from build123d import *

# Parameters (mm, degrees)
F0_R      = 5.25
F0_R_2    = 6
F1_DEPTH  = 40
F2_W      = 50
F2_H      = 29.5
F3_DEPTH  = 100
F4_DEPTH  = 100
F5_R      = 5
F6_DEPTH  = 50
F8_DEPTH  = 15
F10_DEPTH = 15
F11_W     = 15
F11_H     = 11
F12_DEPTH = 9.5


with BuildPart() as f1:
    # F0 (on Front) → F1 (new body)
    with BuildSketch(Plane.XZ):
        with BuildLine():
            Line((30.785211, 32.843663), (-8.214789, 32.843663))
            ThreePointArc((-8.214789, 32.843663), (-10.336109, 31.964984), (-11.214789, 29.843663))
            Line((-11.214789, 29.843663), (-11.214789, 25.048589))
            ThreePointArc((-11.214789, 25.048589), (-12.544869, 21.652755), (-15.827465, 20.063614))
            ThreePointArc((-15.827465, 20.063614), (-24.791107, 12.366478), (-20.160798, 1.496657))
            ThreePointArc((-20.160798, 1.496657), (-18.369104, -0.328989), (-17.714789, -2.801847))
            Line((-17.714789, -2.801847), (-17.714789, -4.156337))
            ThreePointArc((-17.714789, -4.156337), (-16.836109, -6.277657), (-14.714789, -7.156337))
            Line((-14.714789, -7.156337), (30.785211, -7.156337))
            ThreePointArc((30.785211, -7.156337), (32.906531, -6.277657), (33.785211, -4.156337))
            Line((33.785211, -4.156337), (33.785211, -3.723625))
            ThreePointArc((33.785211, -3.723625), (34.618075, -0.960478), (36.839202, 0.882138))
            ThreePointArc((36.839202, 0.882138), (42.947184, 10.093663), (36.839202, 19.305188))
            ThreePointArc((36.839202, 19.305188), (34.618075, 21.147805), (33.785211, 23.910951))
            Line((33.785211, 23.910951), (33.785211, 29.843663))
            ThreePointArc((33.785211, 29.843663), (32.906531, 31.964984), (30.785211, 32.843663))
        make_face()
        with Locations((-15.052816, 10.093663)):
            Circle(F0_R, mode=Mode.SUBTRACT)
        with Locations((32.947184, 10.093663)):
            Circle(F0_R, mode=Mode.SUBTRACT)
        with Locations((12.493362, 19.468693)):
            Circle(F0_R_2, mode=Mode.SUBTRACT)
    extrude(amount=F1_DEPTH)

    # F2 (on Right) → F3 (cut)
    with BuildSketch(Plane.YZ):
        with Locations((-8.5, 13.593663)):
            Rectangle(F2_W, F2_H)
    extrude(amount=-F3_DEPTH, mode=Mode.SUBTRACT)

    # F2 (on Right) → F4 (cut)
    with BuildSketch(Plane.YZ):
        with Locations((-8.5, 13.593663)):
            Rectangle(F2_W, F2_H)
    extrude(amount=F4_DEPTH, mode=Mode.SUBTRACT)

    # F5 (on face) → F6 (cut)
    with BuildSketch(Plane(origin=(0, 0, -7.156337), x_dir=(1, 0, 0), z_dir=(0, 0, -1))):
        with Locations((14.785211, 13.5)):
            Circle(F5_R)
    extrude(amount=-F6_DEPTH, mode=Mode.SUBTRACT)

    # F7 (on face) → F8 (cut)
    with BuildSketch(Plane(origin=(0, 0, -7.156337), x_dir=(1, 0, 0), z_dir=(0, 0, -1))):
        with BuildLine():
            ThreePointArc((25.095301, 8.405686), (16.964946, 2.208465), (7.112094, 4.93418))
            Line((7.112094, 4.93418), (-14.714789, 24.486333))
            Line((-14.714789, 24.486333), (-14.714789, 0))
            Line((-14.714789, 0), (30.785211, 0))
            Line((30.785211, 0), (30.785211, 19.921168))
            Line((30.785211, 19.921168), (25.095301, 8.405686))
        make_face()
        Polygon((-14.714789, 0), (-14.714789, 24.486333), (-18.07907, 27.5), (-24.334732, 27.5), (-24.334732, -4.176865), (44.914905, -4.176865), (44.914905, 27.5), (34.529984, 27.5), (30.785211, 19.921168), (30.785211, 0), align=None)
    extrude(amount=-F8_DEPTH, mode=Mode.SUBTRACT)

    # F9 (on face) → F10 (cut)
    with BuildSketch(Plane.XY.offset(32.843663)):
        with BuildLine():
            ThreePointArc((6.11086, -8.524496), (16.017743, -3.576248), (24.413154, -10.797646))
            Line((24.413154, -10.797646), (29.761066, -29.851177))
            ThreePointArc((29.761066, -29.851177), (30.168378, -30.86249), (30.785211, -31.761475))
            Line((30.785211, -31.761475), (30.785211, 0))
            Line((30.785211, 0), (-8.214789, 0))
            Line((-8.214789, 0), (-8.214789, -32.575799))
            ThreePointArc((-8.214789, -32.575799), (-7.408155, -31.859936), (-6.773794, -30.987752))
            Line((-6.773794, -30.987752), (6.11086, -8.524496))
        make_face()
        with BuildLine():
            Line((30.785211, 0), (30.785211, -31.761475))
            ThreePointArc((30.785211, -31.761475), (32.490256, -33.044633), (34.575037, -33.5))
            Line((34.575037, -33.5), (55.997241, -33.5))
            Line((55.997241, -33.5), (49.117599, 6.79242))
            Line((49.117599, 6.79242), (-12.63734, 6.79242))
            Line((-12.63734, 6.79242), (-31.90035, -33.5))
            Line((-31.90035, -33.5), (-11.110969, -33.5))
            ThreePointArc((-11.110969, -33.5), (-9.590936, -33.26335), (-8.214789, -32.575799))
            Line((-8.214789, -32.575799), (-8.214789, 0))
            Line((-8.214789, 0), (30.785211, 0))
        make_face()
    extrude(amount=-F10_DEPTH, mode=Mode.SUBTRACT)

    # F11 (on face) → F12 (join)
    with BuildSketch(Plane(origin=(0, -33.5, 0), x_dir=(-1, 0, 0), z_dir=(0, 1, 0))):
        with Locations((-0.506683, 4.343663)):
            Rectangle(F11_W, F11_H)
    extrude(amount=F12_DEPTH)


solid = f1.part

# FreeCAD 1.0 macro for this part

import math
import FreeCAD as App
import Part
import Sketcher


def add_polygon(sketch, points):
    """Adds a closed chain of lines whose ends are joined by coincident constraints."""
    first, n = sketch.GeometryCount, len(points)
    for a, b in zip(points, points[1:] + points[:1]):
        sketch.addGeometry(Part.LineSegment(App.Vector(*a, 0), App.Vector(*b, 0)), False)
    for i in range(n):
        sketch.addConstraint(Sketcher.Constraint("Coincident", first + i, 2, first + (i + 1) % n, 1))

doc = App.newDocument("Part")
body = doc.addObject("PartDesign::Body", "Body")

sketch1 = doc.addObject("Sketcher::SketchObject", "Sketch")
body.addObject(sketch1)
sketch1.AttachmentSupport = (doc.XZ_Plane, [""])
sketch1.MapMode = "FlatFace"
sketch1.addGeometry([
    Part.LineSegment(App.Vector(30.79, 32.84, 0), App.Vector(-8.21, 32.84, 0)),
    Part.ArcOfCircle(Part.Circle(App.Vector(-8.21, 29.84, 0), App.Vector(0, 0, 1), 3), math.radians(90), math.radians(180)),
    Part.LineSegment(App.Vector(-11.21, 29.84, 0), App.Vector(-11.21, 25.05, 0)),
    Part.ArcOfCircle(Part.Circle(App.Vector(-16.21, 25.05, 0), App.Vector(0, 0, 1), 5), math.radians(-86), math.radians(0)),
    Part.ArcOfCircle(Part.Circle(App.Vector(-15.05, 10.09, 0), App.Vector(0, 0, 1), 10), math.radians(94), math.radians(239)),
    Part.ArcOfCircle(Part.Circle(App.Vector(-22.71, -2.8, 0), App.Vector(0, 0, 1), 5), math.radians(0), math.radians(59)),
    Part.LineSegment(App.Vector(-17.71, -2.8, 0), App.Vector(-17.71, -4.16, 0)),
    Part.ArcOfCircle(Part.Circle(App.Vector(-14.71, -4.16, 0), App.Vector(0, 0, 1), 3), math.radians(-180), math.radians(-90)),
    Part.LineSegment(App.Vector(-14.71, -7.16, 0), App.Vector(30.79, -7.16, 0)),
    Part.ArcOfCircle(Part.Circle(App.Vector(30.79, -4.16, 0), App.Vector(0, 0, 1), 3), math.radians(-90), math.radians(0)),
    Part.LineSegment(App.Vector(33.79, -4.16, 0), App.Vector(33.79, -3.72, 0)),
    Part.ArcOfCircle(Part.Circle(App.Vector(38.79, -3.72, 0), App.Vector(0, 0, 1), 5), math.radians(113), math.radians(180)),
    Part.ArcOfCircle(Part.Circle(App.Vector(32.95, 10.09, 0), App.Vector(0, 0, 1), 10), math.radians(-67), math.radians(67)),
    Part.ArcOfCircle(Part.Circle(App.Vector(38.79, 23.91, 0), App.Vector(0, 0, 1), 5), math.radians(-180), math.radians(-113)),
    Part.LineSegment(App.Vector(33.79, 23.91, 0), App.Vector(33.79, 29.84, 0)),
    Part.ArcOfCircle(Part.Circle(App.Vector(30.79, 29.84, 0), App.Vector(0, 0, 1), 3), math.radians(0), math.radians(90)),
    Part.Circle(App.Vector(-15.05, 10.09, 0), App.Vector(0, 0, 1), 5.25),
    Part.Circle(App.Vector(32.95, 10.09, 0), App.Vector(0, 0, 1), 5.25),
    Part.Circle(App.Vector(12.49, 19.47, 0), App.Vector(0, 0, 1), 6),
], False)
sketch1.addConstraint([
    Sketcher.Constraint("Tangent", 0, 2, 1, 1),
    Sketcher.Constraint("Tangent", 1, 2, 2, 1),
    Sketcher.Constraint("Tangent", 2, 2, 3, 2),
    Sketcher.Constraint("Tangent", 3, 1, 4, 1),
    Sketcher.Constraint("Tangent", 4, 2, 5, 2),
    Sketcher.Constraint("Tangent", 5, 1, 6, 1),
    Sketcher.Constraint("Tangent", 6, 2, 7, 1),
    Sketcher.Constraint("Tangent", 7, 2, 8, 1),
    Sketcher.Constraint("Tangent", 8, 2, 9, 1),
    Sketcher.Constraint("Tangent", 9, 2, 10, 1),
    Sketcher.Constraint("Tangent", 10, 2, 11, 2),
    Sketcher.Constraint("Tangent", 11, 1, 12, 1),
    Sketcher.Constraint("Tangent", 12, 2, 13, 2),
    Sketcher.Constraint("Tangent", 13, 1, 14, 1),
    Sketcher.Constraint("Tangent", 14, 2, 15, 1),
    Sketcher.Constraint("Tangent", 15, 2, 0, 1),
    Sketcher.Constraint("Horizontal", 0),
    Sketcher.Constraint("Vertical", 2),
    Sketcher.Constraint("Vertical", 6),
    Sketcher.Constraint("Horizontal", 8),
    Sketcher.Constraint("Vertical", 10),
    Sketcher.Constraint("Vertical", 14),
    Sketcher.Constraint("Coincident", 16, 3, 4, 3),
    Sketcher.Constraint("Coincident", 17, 3, 12, 3),
    Sketcher.Constraint("Equal", 3, 5),
    Sketcher.Constraint("Equal", 1, 7),
    Sketcher.Constraint("Equal", 7, 9),
    Sketcher.Constraint("Equal", 5, 11),
    Sketcher.Constraint("Equal", 4, 12),
    Sketcher.Constraint("Equal", 9, 15),
    Sketcher.Constraint("Equal", 16, 17),
    Sketcher.Constraint("Horizontal", 4, 3, 12, 3),
    Sketcher.Constraint("Vertical", 9, 3, 15, 3),
    Sketcher.Constraint("Vertical", 11, 1, 12, 2),
    Sketcher.Constraint("Diameter", 18, 12.0),
    Sketcher.Constraint("Radius", 1, 2.999999),
    Sketcher.Constraint("Radius", 3, 4.999999),
    Sketcher.Constraint("Radius", 4, 10.0),
    Sketcher.Constraint("Diameter", 16, 10.5),
    Sketcher.Constraint("DistanceX", 0, 2, 0, 1, 39.0),
    Sketcher.Constraint("DistanceX", 8, 1, 8, 2, 45.5),
    Sketcher.Constraint("DistanceY", 7, 3, 1, 3, 33.999999),
    Sketcher.Constraint("DistanceX", 4, 3, 12, 3, 48.0),
    Sketcher.Constraint("DistanceY", 4, 3, 1, 3, 19.75),
    Sketcher.Constraint("DistanceY", 6, 2, 6, 1, 1.35449),
    Sketcher.Constraint("DistanceX", -1, 1, 11, 1, 36.839202),
    Sketcher.Constraint("DistanceY", -1, 1, 3, 3, 25.048588),
    Sketcher.Constraint("DistanceX", 18, 3, 15, 3, 18.29185),
    Sketcher.Constraint("DistanceY", 18, 3, 15, 3, 10.374971),
])
pad1 = doc.addObject("PartDesign::Pad", "Pad")
body.addObject(pad1)
pad1.Profile = sketch1
pad1.Length = 40

sketch2 = doc.addObject("Sketcher::SketchObject", "Sketch001")
body.addObject(sketch2)
sketch2.AttachmentSupport = (doc.YZ_Plane, [""])
sketch2.MapMode = "FlatFace"
add_polygon(sketch2, [(-34, 28), (-34, -1), (16, -1), (16, 28)])
sketch2.addConstraint([
    Sketcher.Constraint("Vertical", 0),
    Sketcher.Constraint("Horizontal", 1),
    Sketcher.Constraint("Vertical", 2),
    Sketcher.Constraint("Horizontal", 3),
    Sketcher.Constraint("DistanceX", 1, 1, 1, 2, 50.0),
    Sketcher.Constraint("DistanceY", 0, 2, 0, 1, 29.5),
    Sketcher.Constraint("DistanceX", 0, 2, -1, 1, 33.5),
    Sketcher.Constraint("DistanceY", 0, 2, -1, 1, 1.156337),
])
pocket1 = doc.addObject("PartDesign::Pocket", "Pocket")
body.addObject(pocket1)
pocket1.Profile = sketch2
pocket1.Length = 100

sketch3 = doc.addObject("Sketcher::SketchObject", "Sketch002")
body.addObject(sketch3)
sketch3.AttachmentSupport = (doc.YZ_Plane, [""])
sketch3.MapMode = "FlatFace"
add_polygon(sketch3, [(-34, 28), (-34, -1), (16, -1), (16, 28)])
sketch3.addConstraint([
    Sketcher.Constraint("Vertical", 0),
    Sketcher.Constraint("Horizontal", 1),
    Sketcher.Constraint("Vertical", 2),
    Sketcher.Constraint("Horizontal", 3),
    Sketcher.Constraint("DistanceX", 1, 1, 1, 2, 50.0),
    Sketcher.Constraint("DistanceY", 0, 2, 0, 1, 29.5),
    Sketcher.Constraint("DistanceX", 0, 2, -1, 1, 33.5),
    Sketcher.Constraint("DistanceY", 0, 2, -1, 1, 1.156337),
])
pocket2 = doc.addObject("PartDesign::Pocket", "Pocket001")
body.addObject(pocket2)
pocket2.Profile = sketch3
pocket2.Length = 100
pocket2.Reversed = True

sketch4 = doc.addObject("Sketcher::SketchObject", "Sketch003")
body.addObject(sketch4)
sketch4.AttachmentSupport = (doc.XY_Plane, [""])
sketch4.MapMode = "FlatFace"
sketch4.AttachmentOffset = App.Placement(App.Vector(0, 0, -7.156337), App.Rotation())
sketch4.addGeometry(Part.Circle(App.Vector(15, -14, 0), App.Vector(0, 0, 1), 5), False)
sketch4.addConstraint([
    Sketcher.Constraint("Diameter", 0, 10.0),
    Sketcher.Constraint("DistanceY", 0, 3, -1, 1, 13.5),
    Sketcher.Constraint("DistanceX", -1, 1, 0, 3, 14.785211),
])
pocket3 = doc.addObject("PartDesign::Pocket", "Pocket002")
body.addObject(pocket3)
pocket3.Profile = sketch4
pocket3.Length = 50
pocket3.Reversed = True

sketch5 = doc.addObject("Sketcher::SketchObject", "Sketch004")
body.addObject(sketch5)
sketch5.AttachmentSupport = (doc.XY_Plane, [""])
sketch5.MapMode = "FlatFace"
sketch5.AttachmentOffset = App.Placement(App.Vector(0, 0, -7.156337), App.Rotation())
sketch5.addGeometry([
    Part.ArcOfCircle(Part.Circle(App.Vector(14.8, -13.5, 0), App.Vector(0, 0, 1), 11.5), math.radians(26), math.radians(132)),
    Part.LineSegment(App.Vector(7.1, -4.9, 0), App.Vector(-14.7, -24.5, 0)),
    Part.LineSegment(App.Vector(-14.7, -24.5, 0), App.Vector(-18.1, -27.5, 0)),
    Part.LineSegment(App.Vector(-18.1, -27.5, 0), App.Vector(-24.3, -27.5, 0)),
    Part.LineSegment(App.Vector(-24.3, -27.5, 0), App.Vector(-24.3, 4.2, 0)),
    Part.LineSegment(App.Vector(-24.3, 4.2, 0), App.Vector(44.9, 4.2, 0)),
    Part.LineSegment(App.Vector(44.9, 4.2, 0), App.Vector(44.9, -27.5, 0)),
    Part.LineSegment(App.Vector(44.9, -27.5, 0), App.Vector(34.5, -27.5, 0)),
    Part.LineSegment(App.Vector(34.5, -27.5, 0), App.Vector(30.8, -19.9, 0)),
    Part.LineSegment(App.Vector(30.8, -19.9, 0), App.Vector(25.1, -8.4, 0)),
], False)
sketch5.addConstraint([
    Sketcher.Constraint("Tangent", 0, 2, 1, 1),
    Sketcher.Constraint("Coincident", 1, 2, 2, 1),
    Sketcher.Constraint("Coincident", 2, 2, 3, 1),
    Sketcher.Constraint("Coincident", 3, 2, 4, 1),
    Sketcher.Constraint("Coincident", 4, 2, 5, 1),
    Sketcher.Constraint("Coincident", 5, 2, 6, 1),
    Sketcher.Constraint("Coincident", 6, 2, 7, 1),
    Sketcher.Constraint("Coincident", 7, 2, 8, 1),
    Sketcher.Constraint("Coincident", 8, 2, 9, 1),
    Sketcher.Constraint("Tangent", 9, 2, 0, 1),
    Sketcher.Constraint("Horizontal", 3),
    Sketcher.Constraint("Vertical", 4),
    Sketcher.Constraint("Horizontal", 5),
    Sketcher.Constraint("Vertical", 6),
    Sketcher.Constraint("Horizontal", 7),
    Sketcher.Constraint("Parallel", 1, 2),
    Sketcher.Constraint("Parallel", 8, 9),
    Sketcher.Constraint("Horizontal", 3, 2, 6, 2),
    Sketcher.Constraint("Radius", 0, 11.499999),
    Sketcher.Constraint("DistanceY", 2, 2, 0, 3, 14.000001),
    Sketcher.Constraint("DistanceX", 0, 3, 8, 2, 16.0),
    Sketcher.Constraint("DistanceY", 0, 3, -1, 1, 13.499999),
    Sketcher.Constraint("DistanceX", 1, 2, 0, 3, 29.5),
    Sketcher.Constraint("Distance", 2, 4.5167),
    Sketcher.Constraint("DistanceX", 3, 2, 3, 1, 6.255662),
    Sketcher.Constraint("DistanceX", 7, 2, 7, 1, 10.384921),
    Sketcher.Constraint("DistanceX", -1, 1, 9, 2, 25.095301),
    Sketcher.Constraint("Distance", 8, 8.453521),
    Sketcher.Constraint("DistanceY", 4, 1, 4, 2, 31.676865),
])
pocket4 = doc.addObject("PartDesign::Pocket", "Pocket003")
body.addObject(pocket4)
pocket4.Profile = sketch5
pocket4.Length = 15
pocket4.Reversed = True

sketch6 = doc.addObject("Sketcher::SketchObject", "Sketch005")
body.addObject(sketch6)
sketch6.AttachmentSupport = (doc.XY_Plane, [""])
sketch6.MapMode = "FlatFace"
sketch6.AttachmentOffset = App.Placement(App.Vector(0, 0, 32.843663), App.Rotation())
sketch6.addGeometry([
    Part.ArcOfCircle(Part.Circle(App.Vector(14.8, -13.5, 0), App.Vector(0, 0, 1), 10), math.radians(16), math.radians(150)),
    Part.LineSegment(App.Vector(24.4, -10.8, 0), App.Vector(29.8, -29.9, 0)),
    Part.ArcOfCircle(Part.Circle(App.Vector(34.6, -28.5, 0), App.Vector(0, 0, 1), 5), math.radians(-164), math.radians(-139)),
    Part.ArcOfCircle(Part.Circle(App.Vector(34.6, -28.5, 0), App.Vector(0, 0, 1), 5), math.radians(-139), math.radians(-90)),
    Part.LineSegment(App.Vector(34.6, -33.5, 0), App.Vector(56, -33.5, 0)),
    Part.LineSegment(App.Vector(56, -33.5, 0), App.Vector(49.1, 6.8, 0)),
    Part.LineSegment(App.Vector(49.1, 6.8, 0), App.Vector(-12.6, 6.8, 0)),
    Part.LineSegment(App.Vector(-12.6, 6.8, 0), App.Vector(-31.9, -33.5, 0)),
    Part.LineSegment(App.Vector(-31.9, -33.5, 0), App.Vector(-11.1, -33.5, 0)),
    Part.ArcOfCircle(Part.Circle(App.Vector(-11.1, -28.5, 0), App.Vector(0, 0, 1), 5), math.radians(-90), math.radians(-55)),
    Part.ArcOfCircle(Part.Circle(App.Vector(-11.1, -28.5, 0), App.Vector(0, 0, 1), 5), math.radians(-55), math.radians(-30)),
    Part.LineSegment(App.Vector(-6.8, -31, 0), App.Vector(6.1, -8.5, 0)),
], False)
sketch6.addConstraint([
    Sketcher.Constraint("Tangent", 0, 1, 1, 1),
    Sketcher.Constraint("Tangent", 1, 2, 2, 1),
    Sketcher.Constraint("Tangent", 2, 2, 3, 1),
    Sketcher.Constraint("Tangent", 3, 2, 4, 1),
    Sketcher.Constraint("Coincident", 4, 2, 5, 1),
    Sketcher.Constraint("Coincident", 5, 2, 6, 1),
    Sketcher.Constraint("Coincident", 6, 2, 7, 1),
    Sketcher.Constraint("Coincident", 7, 2, 8, 1),
    Sketcher.Constraint("Tangent", 8, 2, 9, 1),
    Sketcher.Constraint("Tangent", 9, 2, 10, 1),
    Sketcher.Constraint("Tangent", 10, 2, 11, 1),
    Sketcher.Constraint("Tangent", 11, 2, 0, 2),
    Sketcher.Constraint("Horizontal", 4),
    Sketcher.Constraint("Horizontal", 6),
    Sketcher.Constraint("Horizontal", 8),
    Sketcher.Constraint("Horizontal", 2, 3, 9, 3),
    Sketcher.Constraint("Horizontal", 4, 2, 7, 2),
    Sketcher.Constraint("Radius", 0, 10.000001),
    Sketcher.Constraint("Radius", 3, 4.999999),
    Sketcher.Constraint("DistanceY", 3, 3, 0, 3, 15.0),
    Sketcher.Constraint("DistanceX", 0, 3, 2, 2, 16.0),
    Sketcher.Constraint("DistanceX", 9, 2, 0, 3, 23.0),
    Sketcher.Constraint("DistanceY", 0, 3, -1, 1, 13.500001),
    Sketcher.Constraint("Radius", 2, 4.999982),
    Sketcher.Constraint("Radius", 10, 4.999979),
    Sketcher.Constraint("DistanceX", 6, 2, 6, 1, 61.754939),
    Sketcher.Constraint("DistanceX", 8, 1, 8, 2, 20.789381),
    Sketcher.Constraint("DistanceX", -1, 1, 5, 2, 49.117599),
    Sketcher.Constraint("DistanceY", 9, 2, -1, 1, 32.575799),
    Sketcher.Constraint("DistanceX", 6, 2, 11, 2, 18.7482),
    Sketcher.Constraint("DistanceX", 4, 1, 4, 2, 21.422204),
    Sketcher.Constraint("DistanceX", -1, 1, 2, 3, 34.575021),
    Sketcher.Constraint("DistanceY", -1, 1, 5, 2, 6.79242),
])
pocket5 = doc.addObject("PartDesign::Pocket", "Pocket004")
body.addObject(pocket5)
pocket5.Profile = sketch6
pocket5.Length = 15

sketch7 = doc.addObject("Sketcher::SketchObject", "Sketch006")
body.addObject(sketch7)
sketch7.AttachmentSupport = (doc.XZ_Plane, [""])
sketch7.MapMode = "FlatFace"
sketch7.AttachmentOffset = App.Placement(App.Vector(0, 0, 33.5), App.Rotation())
add_polygon(sketch7, [(8, 10), (8, -1), (-7, -1), (-7, 10)])
sketch7.addConstraint([
    Sketcher.Constraint("Vertical", 0),
    Sketcher.Constraint("Horizontal", 1),
    Sketcher.Constraint("Vertical", 2),
    Sketcher.Constraint("Horizontal", 3),
    Sketcher.Constraint("DistanceX", 1, 2, 1, 1, 15.0),
    Sketcher.Constraint("DistanceY", 0, 2, 0, 1, 11.0),
    Sketcher.Constraint("DistanceX", -1, 1, 0, 2, 8.006683),
    Sketcher.Constraint("DistanceY", 0, 2, -1, 1, 1.156337),
])
pad2 = doc.addObject("PartDesign::Pad", "Pad001")
body.addObject(pad2)
pad2.Profile = sketch7
pad2.Length = 9.5
pad2.Reversed = True

doc.recompute()
